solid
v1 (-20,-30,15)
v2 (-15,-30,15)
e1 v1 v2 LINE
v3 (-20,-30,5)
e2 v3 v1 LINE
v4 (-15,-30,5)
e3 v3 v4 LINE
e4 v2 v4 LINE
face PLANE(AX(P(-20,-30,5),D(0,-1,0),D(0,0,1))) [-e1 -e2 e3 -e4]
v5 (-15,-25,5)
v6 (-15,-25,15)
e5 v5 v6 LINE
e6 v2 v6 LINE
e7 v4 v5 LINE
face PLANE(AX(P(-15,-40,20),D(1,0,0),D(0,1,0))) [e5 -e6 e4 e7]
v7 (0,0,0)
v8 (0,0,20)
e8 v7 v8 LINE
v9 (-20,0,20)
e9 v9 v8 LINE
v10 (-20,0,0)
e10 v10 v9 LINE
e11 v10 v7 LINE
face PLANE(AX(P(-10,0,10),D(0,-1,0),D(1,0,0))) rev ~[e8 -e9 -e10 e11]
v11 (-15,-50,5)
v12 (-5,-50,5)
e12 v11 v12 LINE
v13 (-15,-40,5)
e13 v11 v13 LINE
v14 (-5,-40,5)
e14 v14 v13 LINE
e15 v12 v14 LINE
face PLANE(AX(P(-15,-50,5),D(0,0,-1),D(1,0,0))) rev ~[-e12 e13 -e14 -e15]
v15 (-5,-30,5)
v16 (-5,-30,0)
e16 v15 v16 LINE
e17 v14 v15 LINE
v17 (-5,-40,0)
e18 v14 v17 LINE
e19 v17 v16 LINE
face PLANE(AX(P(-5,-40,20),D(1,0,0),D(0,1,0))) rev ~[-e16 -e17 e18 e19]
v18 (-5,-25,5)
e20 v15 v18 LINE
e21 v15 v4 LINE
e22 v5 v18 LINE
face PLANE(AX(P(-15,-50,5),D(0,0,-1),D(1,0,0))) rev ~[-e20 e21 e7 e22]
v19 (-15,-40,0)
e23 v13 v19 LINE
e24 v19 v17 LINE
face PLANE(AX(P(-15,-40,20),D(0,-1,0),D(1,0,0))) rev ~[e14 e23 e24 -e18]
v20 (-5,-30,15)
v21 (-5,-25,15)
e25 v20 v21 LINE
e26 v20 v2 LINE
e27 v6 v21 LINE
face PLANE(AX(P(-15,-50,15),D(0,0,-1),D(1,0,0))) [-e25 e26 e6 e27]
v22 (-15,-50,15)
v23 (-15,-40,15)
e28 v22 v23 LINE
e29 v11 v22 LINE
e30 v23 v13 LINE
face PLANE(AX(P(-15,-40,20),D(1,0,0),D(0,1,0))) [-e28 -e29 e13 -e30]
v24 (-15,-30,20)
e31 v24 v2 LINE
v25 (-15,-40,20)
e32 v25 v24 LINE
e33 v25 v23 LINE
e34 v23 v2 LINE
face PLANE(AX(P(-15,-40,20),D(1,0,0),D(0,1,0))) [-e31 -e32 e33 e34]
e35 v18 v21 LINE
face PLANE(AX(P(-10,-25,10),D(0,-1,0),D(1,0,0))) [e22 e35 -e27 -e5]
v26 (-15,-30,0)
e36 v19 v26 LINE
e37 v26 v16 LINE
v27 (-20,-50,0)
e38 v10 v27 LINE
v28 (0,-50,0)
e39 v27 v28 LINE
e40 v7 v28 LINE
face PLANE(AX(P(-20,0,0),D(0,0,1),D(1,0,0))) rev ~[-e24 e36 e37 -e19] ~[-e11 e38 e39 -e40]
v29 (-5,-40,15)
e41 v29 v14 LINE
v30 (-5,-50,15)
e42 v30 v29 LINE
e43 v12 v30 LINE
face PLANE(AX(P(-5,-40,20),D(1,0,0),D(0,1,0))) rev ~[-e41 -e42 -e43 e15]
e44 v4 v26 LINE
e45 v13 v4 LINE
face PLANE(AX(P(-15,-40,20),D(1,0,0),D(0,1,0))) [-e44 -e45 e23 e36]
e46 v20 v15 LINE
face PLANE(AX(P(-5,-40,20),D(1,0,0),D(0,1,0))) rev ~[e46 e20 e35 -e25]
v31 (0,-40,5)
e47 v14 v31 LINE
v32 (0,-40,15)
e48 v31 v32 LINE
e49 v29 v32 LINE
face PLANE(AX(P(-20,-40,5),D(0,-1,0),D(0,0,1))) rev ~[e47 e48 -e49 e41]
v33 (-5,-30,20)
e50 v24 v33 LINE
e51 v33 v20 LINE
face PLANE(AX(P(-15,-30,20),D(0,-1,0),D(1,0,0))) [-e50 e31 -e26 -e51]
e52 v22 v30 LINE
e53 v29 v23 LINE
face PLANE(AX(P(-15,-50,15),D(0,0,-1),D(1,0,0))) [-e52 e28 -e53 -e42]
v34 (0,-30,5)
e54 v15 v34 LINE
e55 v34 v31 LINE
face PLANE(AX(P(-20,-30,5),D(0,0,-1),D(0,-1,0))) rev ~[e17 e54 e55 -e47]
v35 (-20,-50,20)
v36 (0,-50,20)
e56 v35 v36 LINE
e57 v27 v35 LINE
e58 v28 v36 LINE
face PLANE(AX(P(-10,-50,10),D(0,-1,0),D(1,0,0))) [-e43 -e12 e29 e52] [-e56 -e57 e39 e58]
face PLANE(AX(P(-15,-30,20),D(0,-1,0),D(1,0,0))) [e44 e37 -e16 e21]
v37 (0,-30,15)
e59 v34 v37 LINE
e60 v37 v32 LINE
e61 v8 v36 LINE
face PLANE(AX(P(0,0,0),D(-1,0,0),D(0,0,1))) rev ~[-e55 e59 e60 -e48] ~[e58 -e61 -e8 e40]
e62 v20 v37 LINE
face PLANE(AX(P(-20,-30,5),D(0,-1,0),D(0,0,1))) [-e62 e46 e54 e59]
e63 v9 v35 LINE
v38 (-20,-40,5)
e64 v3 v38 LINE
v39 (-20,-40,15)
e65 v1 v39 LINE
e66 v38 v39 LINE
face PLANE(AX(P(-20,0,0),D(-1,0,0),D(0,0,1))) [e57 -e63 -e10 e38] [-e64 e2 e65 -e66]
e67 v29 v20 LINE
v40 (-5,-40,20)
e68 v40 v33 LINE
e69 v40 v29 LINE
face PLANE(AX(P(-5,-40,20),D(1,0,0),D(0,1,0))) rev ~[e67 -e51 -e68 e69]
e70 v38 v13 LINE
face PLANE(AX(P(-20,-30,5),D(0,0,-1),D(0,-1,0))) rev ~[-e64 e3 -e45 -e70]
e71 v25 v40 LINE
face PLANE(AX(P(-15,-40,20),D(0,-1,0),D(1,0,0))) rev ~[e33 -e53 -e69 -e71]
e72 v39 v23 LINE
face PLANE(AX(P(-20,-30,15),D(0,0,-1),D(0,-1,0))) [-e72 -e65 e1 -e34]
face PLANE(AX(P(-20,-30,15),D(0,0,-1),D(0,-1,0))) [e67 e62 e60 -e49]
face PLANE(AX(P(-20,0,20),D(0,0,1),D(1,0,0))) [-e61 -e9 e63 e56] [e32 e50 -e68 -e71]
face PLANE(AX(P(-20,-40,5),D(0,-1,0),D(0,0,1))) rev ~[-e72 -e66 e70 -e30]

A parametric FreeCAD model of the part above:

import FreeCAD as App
import Part
import Sketcher
Q = App.Units.Quantity

doc = App.newDocument("Part")
body = doc.addObject("PartDesign::Body", "Body")

sketch1 = body.newObject("Sketcher::SketchObject", "Sketch")
sketch1.AttachmentSupport = (doc.getObject("XZ_Plane"), [""])
sketch1.MapMode = "FlatFace"
sketch1.addGeometry(Part.LineSegment(App.Vector(-20, 20, 0), App.Vector(-20, 0, 0)), False)
sketch1.addGeometry(Part.LineSegment(App.Vector(-20, 0, 0), App.Vector(0, 0, 0)), False)
sketch1.addGeometry(Part.LineSegment(App.Vector(0, 0, 0), App.Vector(0, 20, 0)), False)
sketch1.addGeometry(Part.LineSegment(App.Vector(0, 20, 0), App.Vector(-20, 20, 0)), False)
sketch1.addConstraint(Sketcher.Constraint("Coincident", 0, 2, 1, 1))
sketch1.addConstraint(Sketcher.Constraint("Coincident", 1, 2, 2, 1))
sketch1.addConstraint(Sketcher.Constraint("Coincident", 2, 2, 3, 1))
sketch1.addConstraint(Sketcher.Constraint("Coincident", 3, 2, 0, 1))
sketch1.addConstraint(Sketcher.Constraint("Vertical", 0))
sketch1.addConstraint(Sketcher.Constraint("Horizontal", 1))
sketch1.addConstraint(Sketcher.Constraint("Vertical", 2))
sketch1.addConstraint(Sketcher.Constraint("Horizontal", 3))
sketch1.addConstraint(Sketcher.Constraint("Coincident", 1, 2, -1, 1))
sketch1.addConstraint(Sketcher.Constraint("Equal", 3, 0))
sketch1.addConstraint(Sketcher.Constraint("DistanceX", 1, 1, 1, 2, Q("20 mm")))
pad1 = body.newObject("PartDesign::Pad", "Pad")
pad1.Profile = sketch1
pad1.Length = 50

sketch2 = body.newObject("Sketcher::SketchObject", "Sketch001")
sketch2.AttachmentSupport = (doc.getObject("XZ_Plane"), [""])
sketch2.MapMode = "FlatFace"
sketch2.AttachmentOffset = App.Placement(App.Vector(0, 0, 50), App.Rotation())
sketch2.addGeometry(Part.LineSegment(App.Vector(-15, 15, 0), App.Vector(-15, 5, 0)), False)
sketch2.addGeometry(Part.LineSegment(App.Vector(-15, 5, 0), App.Vector(-5, 5, 0)), False)
sketch2.addGeometry(Part.LineSegment(App.Vector(-5, 5, 0), App.Vector(-5, 15, 0)), False)
sketch2.addGeometry(Part.LineSegment(App.Vector(-5, 15, 0), App.Vector(-15, 15, 0)), False)
sketch2.addConstraint(Sketcher.Constraint("Coincident", 0, 2, 1, 1))
sketch2.addConstraint(Sketcher.Constraint("Coincident", 1, 2, 2, 1))
sketch2.addConstraint(Sketcher.Constraint("Coincident", 2, 2, 3, 1))
sketch2.addConstraint(Sketcher.Constraint("Coincident", 3, 2, 0, 1))
sketch2.addConstraint(Sketcher.Constraint("Vertical", 0))
sketch2.addConstraint(Sketcher.Constraint("Horizontal", 1))
sketch2.addConstraint(Sketcher.Constraint("Vertical", 2))
sketch2.addConstraint(Sketcher.Constraint("Horizontal", 3))
sketch2.addConstraint(Sketcher.Constraint("Equal", 3, 0))
sketch2.addConstraint(Sketcher.Constraint("DistanceX", 1, 1, 1, 2, Q("10 mm")))
sketch2.addConstraint(Sketcher.Constraint("DistanceX", 0, 2, -1, 1, Q("15 mm")))
sketch2.addConstraint(Sketcher.Constraint("DistanceY", -1, 1, 0, 2, Q("5 mm")))
pocket1 = body.newObject("PartDesign::Pocket", "Pocket")
pocket1.Profile = sketch2
pocket1.Length = 25

sketch3 = body.newObject("Sketcher::SketchObject", "Sketch002")
sketch3.AttachmentSupport = (doc.getObject("XY_Plane"), [""])
sketch3.MapMode = "FlatFace"
sketch3.AttachmentOffset = App.Placement(App.Vector(0, 0, 20), App.Rotation())
sketch3.addGeometry(Part.LineSegment(App.Vector(-15, -30, 0), App.Vector(-15, -40, 0)), False)
sketch3.addGeometry(Part.LineSegment(App.Vector(-15, -40, 0), App.Vector(-5, -40, 0)), False)
sketch3.addGeometry(Part.LineSegment(App.Vector(-5, -40, 0), App.Vector(-5, -30, 0)), False)
sketch3.addGeometry(Part.LineSegment(App.Vector(-5, -30, 0), App.Vector(-15, -30, 0)), False)
sketch3.addConstraint(Sketcher.Constraint("Coincident", 0, 2, 1, 1))
sketch3.addConstraint(Sketcher.Constraint("Coincident", 1, 2, 2, 1))
sketch3.addConstraint(Sketcher.Constraint("Coincident", 2, 2, 3, 1))
sketch3.addConstraint(Sketcher.Constraint("Coincident", 3, 2, 0, 1))
sketch3.addConstraint(Sketcher.Constraint("Vertical", 0))
sketch3.addConstraint(Sketcher.Constraint("Horizontal", 1))
sketch3.addConstraint(Sketcher.Constraint("Vertical", 2))
sketch3.addConstraint(Sketcher.Constraint("Horizontal", 3))
sketch3.addConstraint(Sketcher.Constraint("Equal", 3, 0))
sketch3.addConstraint(Sketcher.Constraint("DistanceX", 1, 1, 1, 2, Q("10 mm")))
sketch3.addConstraint(Sketcher.Constraint("DistanceX", 0, 2, -1, 1, Q("15 mm")))
sketch3.addConstraint(Sketcher.Constraint("DistanceY", 0, 2, -1, 1, Q("40 mm")))
pocket2 = body.newObject("PartDesign::Pocket", "Pocket001")
pocket2.Profile = sketch3
pocket2.Length = 25

sketch4 = body.newObject("Sketcher::SketchObject", "Sketch003")
sketch4.AttachmentSupport = (doc.getObject("YZ_Plane"), [""])
sketch4.MapMode = "FlatFace"
sketch4.AttachmentOffset = App.Placement(App.Vector(0, 0, -20), App.Rotation())
sketch4.addGeometry(Part.LineSegment(App.Vector(-30, 15, 0), App.Vector(-30, 5, 0)), False)
sketch4.addGeometry(Part.LineSegment(App.Vector(-30, 5, 0), App.Vector(-40, 5, 0)), False)
sketch4.addGeometry(Part.LineSegment(App.Vector(-40, 5, 0), App.Vector(-40, 15, 0)), False)
sketch4.addGeometry(Part.LineSegment(App.Vector(-40, 15, 0), App.Vector(-30, 15, 0)), False)
sketch4.addConstraint(Sketcher.Constraint("Coincident", 0, 2, 1, 1))
sketch4.addConstraint(Sketcher.Constraint("Coincident", 1, 2, 2, 1))
sketch4.addConstraint(Sketcher.Constraint("Coincident", 2, 2, 3, 1))
sketch4.addConstraint(Sketcher.Constraint("Coincident", 3, 2, 0, 1))
sketch4.addConstraint(Sketcher.Constraint("Vertical", 0))
sketch4.addConstraint(Sketcher.Constraint("Horizontal", 1))
sketch4.addConstraint(Sketcher.Constraint("Vertical", 2))
sketch4.addConstraint(Sketcher.Constraint("Horizontal", 3))
sketch4.addConstraint(Sketcher.Constraint("Equal", 3, 0))
sketch4.addConstraint(Sketcher.Constraint("DistanceX", 1, 2, 1, 1, Q("10 mm")))
sketch4.addConstraint(Sketcher.Constraint("DistanceX", 0, 2, -1, 1, Q("30 mm")))
sketch4.addConstraint(Sketcher.Constraint("DistanceY", -1, 1, 0, 2, Q("5 mm")))
pocket3 = body.newObject("PartDesign::Pocket", "Pocket002")
pocket3.Profile = sketch4
pocket3.Length = 25
pocket3.Reversed = True

doc.recompute()
